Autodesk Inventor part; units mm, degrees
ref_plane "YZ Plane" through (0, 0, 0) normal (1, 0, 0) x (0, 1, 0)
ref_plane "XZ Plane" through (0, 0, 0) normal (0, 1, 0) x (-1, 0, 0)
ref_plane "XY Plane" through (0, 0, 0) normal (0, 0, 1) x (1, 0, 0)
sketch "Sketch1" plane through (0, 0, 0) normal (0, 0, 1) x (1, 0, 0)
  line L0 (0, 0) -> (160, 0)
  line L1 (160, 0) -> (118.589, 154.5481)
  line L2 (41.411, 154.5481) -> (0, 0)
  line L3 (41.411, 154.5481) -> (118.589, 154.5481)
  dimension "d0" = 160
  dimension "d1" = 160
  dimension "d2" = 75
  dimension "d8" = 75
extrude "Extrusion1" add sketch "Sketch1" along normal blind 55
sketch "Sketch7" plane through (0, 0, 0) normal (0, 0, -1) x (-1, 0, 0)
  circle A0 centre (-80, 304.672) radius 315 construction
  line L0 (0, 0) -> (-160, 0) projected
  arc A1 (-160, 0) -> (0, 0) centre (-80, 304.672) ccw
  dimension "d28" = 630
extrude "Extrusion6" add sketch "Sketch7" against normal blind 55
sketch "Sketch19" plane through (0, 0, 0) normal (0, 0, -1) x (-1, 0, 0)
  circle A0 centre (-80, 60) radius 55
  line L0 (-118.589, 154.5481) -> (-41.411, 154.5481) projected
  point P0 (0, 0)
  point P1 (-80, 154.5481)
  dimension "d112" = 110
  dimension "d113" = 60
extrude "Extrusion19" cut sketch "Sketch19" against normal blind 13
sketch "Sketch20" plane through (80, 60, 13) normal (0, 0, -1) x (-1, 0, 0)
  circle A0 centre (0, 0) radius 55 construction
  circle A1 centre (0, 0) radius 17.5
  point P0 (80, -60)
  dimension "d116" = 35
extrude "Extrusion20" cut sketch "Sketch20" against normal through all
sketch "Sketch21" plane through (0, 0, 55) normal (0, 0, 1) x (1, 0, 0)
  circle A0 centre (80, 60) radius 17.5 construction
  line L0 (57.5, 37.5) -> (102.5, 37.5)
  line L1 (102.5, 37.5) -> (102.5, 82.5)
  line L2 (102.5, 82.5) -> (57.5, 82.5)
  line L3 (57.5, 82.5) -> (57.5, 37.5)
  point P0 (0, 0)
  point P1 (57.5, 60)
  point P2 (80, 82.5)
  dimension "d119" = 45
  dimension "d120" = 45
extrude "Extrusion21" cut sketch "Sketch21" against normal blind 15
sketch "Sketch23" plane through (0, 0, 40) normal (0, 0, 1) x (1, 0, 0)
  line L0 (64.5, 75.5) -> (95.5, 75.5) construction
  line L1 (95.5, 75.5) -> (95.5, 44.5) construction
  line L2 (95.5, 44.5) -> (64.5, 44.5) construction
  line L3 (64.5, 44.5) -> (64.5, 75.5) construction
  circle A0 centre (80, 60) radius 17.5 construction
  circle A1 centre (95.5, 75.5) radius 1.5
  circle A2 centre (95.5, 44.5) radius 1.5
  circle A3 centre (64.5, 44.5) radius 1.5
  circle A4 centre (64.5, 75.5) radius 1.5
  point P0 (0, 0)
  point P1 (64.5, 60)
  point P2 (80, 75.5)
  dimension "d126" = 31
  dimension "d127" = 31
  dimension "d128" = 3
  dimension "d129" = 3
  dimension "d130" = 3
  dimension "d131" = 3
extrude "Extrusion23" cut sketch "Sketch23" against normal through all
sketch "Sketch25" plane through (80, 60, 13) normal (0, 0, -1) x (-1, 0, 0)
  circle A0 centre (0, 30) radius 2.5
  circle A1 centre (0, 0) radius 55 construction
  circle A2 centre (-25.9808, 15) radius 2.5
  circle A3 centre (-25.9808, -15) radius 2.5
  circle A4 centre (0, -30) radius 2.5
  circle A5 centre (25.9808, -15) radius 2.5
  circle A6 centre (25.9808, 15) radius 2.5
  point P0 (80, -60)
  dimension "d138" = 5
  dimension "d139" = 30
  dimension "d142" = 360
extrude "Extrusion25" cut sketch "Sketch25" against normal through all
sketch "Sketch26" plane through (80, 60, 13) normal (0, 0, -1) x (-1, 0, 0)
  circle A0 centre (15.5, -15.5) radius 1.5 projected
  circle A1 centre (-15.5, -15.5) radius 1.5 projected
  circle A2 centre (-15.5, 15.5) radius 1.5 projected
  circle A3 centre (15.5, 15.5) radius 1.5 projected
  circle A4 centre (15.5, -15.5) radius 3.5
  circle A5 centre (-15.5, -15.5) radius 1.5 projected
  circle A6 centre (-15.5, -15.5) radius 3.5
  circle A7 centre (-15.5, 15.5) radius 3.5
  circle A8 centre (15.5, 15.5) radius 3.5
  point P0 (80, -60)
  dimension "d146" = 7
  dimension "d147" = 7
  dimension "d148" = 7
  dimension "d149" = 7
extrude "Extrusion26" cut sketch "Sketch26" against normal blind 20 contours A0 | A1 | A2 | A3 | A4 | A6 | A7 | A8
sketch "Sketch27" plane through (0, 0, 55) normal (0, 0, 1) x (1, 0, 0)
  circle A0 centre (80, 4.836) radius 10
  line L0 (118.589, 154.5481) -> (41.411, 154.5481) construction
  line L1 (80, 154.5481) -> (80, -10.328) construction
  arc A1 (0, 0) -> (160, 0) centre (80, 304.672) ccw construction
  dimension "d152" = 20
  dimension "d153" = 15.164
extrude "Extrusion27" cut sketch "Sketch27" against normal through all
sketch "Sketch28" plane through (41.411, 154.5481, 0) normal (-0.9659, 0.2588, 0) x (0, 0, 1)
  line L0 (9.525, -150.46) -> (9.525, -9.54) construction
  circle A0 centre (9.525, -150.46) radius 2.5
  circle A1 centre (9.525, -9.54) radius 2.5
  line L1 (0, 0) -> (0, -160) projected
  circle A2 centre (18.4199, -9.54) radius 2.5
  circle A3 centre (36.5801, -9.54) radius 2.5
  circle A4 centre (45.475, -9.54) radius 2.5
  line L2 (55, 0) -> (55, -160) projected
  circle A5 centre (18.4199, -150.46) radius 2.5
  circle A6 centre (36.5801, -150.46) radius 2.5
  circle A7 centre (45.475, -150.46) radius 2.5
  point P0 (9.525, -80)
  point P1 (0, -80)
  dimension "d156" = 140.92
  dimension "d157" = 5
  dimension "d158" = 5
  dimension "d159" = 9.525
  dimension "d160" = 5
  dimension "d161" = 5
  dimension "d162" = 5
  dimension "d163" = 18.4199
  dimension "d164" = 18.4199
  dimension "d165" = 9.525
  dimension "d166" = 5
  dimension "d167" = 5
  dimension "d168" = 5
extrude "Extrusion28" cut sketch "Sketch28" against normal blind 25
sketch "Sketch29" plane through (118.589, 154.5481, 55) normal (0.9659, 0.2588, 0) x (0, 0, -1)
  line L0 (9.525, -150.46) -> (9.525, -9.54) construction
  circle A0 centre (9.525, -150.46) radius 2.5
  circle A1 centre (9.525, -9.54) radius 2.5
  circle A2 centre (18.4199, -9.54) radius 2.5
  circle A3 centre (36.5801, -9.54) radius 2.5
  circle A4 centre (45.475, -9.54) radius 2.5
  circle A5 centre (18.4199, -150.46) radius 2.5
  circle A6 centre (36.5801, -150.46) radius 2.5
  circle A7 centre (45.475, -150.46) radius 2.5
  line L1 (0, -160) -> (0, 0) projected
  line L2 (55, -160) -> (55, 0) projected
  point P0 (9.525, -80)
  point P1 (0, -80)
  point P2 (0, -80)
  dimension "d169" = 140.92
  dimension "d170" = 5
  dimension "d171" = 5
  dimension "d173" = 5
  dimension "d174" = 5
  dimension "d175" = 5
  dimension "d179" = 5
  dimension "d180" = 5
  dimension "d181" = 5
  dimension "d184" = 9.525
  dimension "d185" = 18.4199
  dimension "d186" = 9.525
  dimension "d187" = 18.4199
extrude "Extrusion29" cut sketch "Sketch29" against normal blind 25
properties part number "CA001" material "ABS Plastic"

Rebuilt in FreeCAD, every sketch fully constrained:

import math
import FreeCAD as App
import Part
import Sketcher

V = App.Vector
Q = App.Units.Quantity


def add_polygon(sketch, points):
    """Adds a closed chain of lines whose ends are joined by coincident constraints."""
    first, n = sketch.GeometryCount, len(points)
    for a, b in zip(points, points[1:] + points[:1]):
        sketch.addGeometry(Part.LineSegment(App.Vector(*a, 0), App.Vector(*b, 0)), False)
    for i in range(n):
        sketch.addConstraint(Sketcher.Constraint("Coincident", first + i, 2, first + (i + 1) % n, 1))

doc = App.newDocument("Part")
body = doc.addObject("PartDesign::Body", "Body")

# Sketch on XY plane
sketch1 = doc.addObject("Sketcher::SketchObject", "Sketch")
body.addObject(sketch1)
sketch1.AttachmentSupport = (doc.XY_Plane, [""])
sketch1.MapMode = "FlatFace"
add_polygon(sketch1, [(41, 155), (0, 0), (160, 0), (119, 155)])  # lines 0-3
sketch1.addConstraint([
    Sketcher.Constraint("Horizontal", 1),
    Sketcher.Constraint("Horizontal", 3),
    Sketcher.Constraint("Coincident", 0, 2, -1, 1),
    Sketcher.Constraint("Equal", 0, 2),
    Sketcher.Constraint("DistanceX", 1, 1, 1, 2, 160.0),
    Sketcher.Constraint("Distance", 0, 160.0),
    Sketcher.Constraint("Angle", 0, Q("-105 deg")),
])
pad1 = doc.addObject("PartDesign::Pad", "Pad")
body.addObject(pad1)
pad1.Profile = sketch1
pad1.Length = 55

# Sketch on XY plane
sketch2 = doc.addObject("Sketcher::SketchObject", "Sketch001")
body.addObject(sketch2)
sketch2.AttachmentSupport = (doc.XY_Plane, [""])
sketch2.MapMode = "FlatFace"
sketch2.addGeometry([
    Part.ArcOfCircle(Part.Circle(V(80, 305, 0), V(0, 0, 1), 315), math.radians(-105), math.radians(-75)),
    Part.LineSegment(V(0, 0, 0), V(160, 0, 0)),
], False)
sketch2.addConstraint([
    Sketcher.Constraint("Coincident", 0, 1, 1, 1),
    Sketcher.Constraint("Coincident", 1, 2, 0, 2),
    Sketcher.Constraint("Horizontal", 1),
    Sketcher.Constraint("Coincident", 0, 1, -1, 1),
    Sketcher.Constraint("Radius", 0, 315.0),
    Sketcher.Constraint("DistanceX", 1, 1, 1, 2, 160.0),
])
pad2 = doc.addObject("PartDesign::Pad", "Pad001")
body.addObject(pad2)
pad2.Profile = sketch2
pad2.Length = 55

# Sketch on XY plane
sketch3 = doc.addObject("Sketcher::SketchObject", "Sketch002")
body.addObject(sketch3)
sketch3.AttachmentSupport = (doc.XY_Plane, [""])
sketch3.MapMode = "FlatFace"
sketch3.addGeometry(Part.Circle(V(80, 60, 0), V(0, 0, 1), 55), False)
sketch3.addConstraint([
    Sketcher.Constraint("Diameter", 0, 110.0),
    Sketcher.Constraint("DistanceY", -1, 1, 0, 3, 60.0),
    Sketcher.Constraint("DistanceX", -1, 1, 0, 3, 80.0),
])
pocket1 = doc.addObject("PartDesign::Pocket", "Pocket")
body.addObject(pocket1)
pocket1.Profile = sketch3
pocket1.Length = 13
pocket1.Reversed = True

# Sketch on XY plane
sketch4 = doc.addObject("Sketcher::SketchObject", "Sketch003")
body.addObject(sketch4)
sketch4.AttachmentSupport = (doc.XY_Plane, [""])
sketch4.MapMode = "FlatFace"
sketch4.AttachmentOffset = App.Placement(V(0, 0, 13), App.Rotation())
sketch4.addGeometry(Part.Circle(V(80, 60, 0), V(0, 0, 1), 18), False)
sketch4.addConstraint([
    Sketcher.Constraint("Diameter", 0, 35.0),
    Sketcher.Constraint("DistanceX", -1, 1, 0, 3, 80.0),
    Sketcher.Constraint("DistanceY", -1, 1, 0, 3, 60.0),
])
pocket2 = doc.addObject("PartDesign::Pocket", "Pocket001")
body.addObject(pocket2)
pocket2.Profile = sketch4
pocket2.Type = "ThroughAll"
pocket2.Reversed = True

# Sketch on XY plane
sketch5 = doc.addObject("Sketcher::SketchObject", "Sketch004")
body.addObject(sketch5)
sketch5.AttachmentSupport = (doc.XY_Plane, [""])
sketch5.MapMode = "FlatFace"
sketch5.AttachmentOffset = App.Placement(V(0, 0, 55), App.Rotation())
add_polygon(sketch5, [(58, 82), (58, 38), (102, 38), (102, 82)])  # lines 0-3
sketch5.addConstraint([
    Sketcher.Constraint("Vertical", 0),
    Sketcher.Constraint("Horizontal", 1),
    Sketcher.Constraint("Vertical", 2),
    Sketcher.Constraint("Horizontal", 3),
    Sketcher.Constraint("Equal", 3, 0),
    Sketcher.Constraint("DistanceX", 1, 1, 1, 2, 45.0),
    Sketcher.Constraint("DistanceX", -1, 1, 0, 2, 57.5),
    Sketcher.Constraint("DistanceY", -1, 1, 0, 2, 37.5),
])
pocket3 = doc.addObject("PartDesign::Pocket", "Pocket002")
body.addObject(pocket3)
pocket3.Profile = sketch5
pocket3.Length = 15

# Sketch on XY plane
sketch6 = doc.addObject("Sketcher::SketchObject", "Sketch005")
body.addObject(sketch6)
sketch6.AttachmentSupport = (doc.XY_Plane, [""])
sketch6.MapMode = "FlatFace"
sketch6.AttachmentOffset = App.Placement(V(0, 0, 40), App.Rotation())
sketch6.addGeometry([
    Part.Circle(V(95.5, 75.5, 0), V(0, 0, 1), 1.5),
    Part.Circle(V(95.5, 44.5, 0), V(0, 0, 1), 1.5),
    Part.Circle(V(64.5, 44.5, 0), V(0, 0, 1), 1.5),
    Part.Circle(V(64.5, 75.5, 0), V(0, 0, 1), 1.5),
], False)
sketch6.addConstraint([
    Sketcher.Constraint("Equal", 0, 1),
    Sketcher.Constraint("Equal", 1, 2),
    Sketcher.Constraint("Equal", 2, 3),
    Sketcher.Constraint("Horizontal", 1, 3, 2, 3),
    Sketcher.Constraint("Horizontal", 0, 3, 3, 3),
    Sketcher.Constraint("Vertical", 0, 3, 1, 3),
    Sketcher.Constraint("Vertical", 2, 3, 3, 3),
    Sketcher.Constraint("Diameter", 0, 3.0),
    Sketcher.Constraint("DistanceY", 1, 3, 0, 3, 31.0),
    Sketcher.Constraint("DistanceX", 2, 3, 1, 3, 31.0),
    Sketcher.Constraint("DistanceX", -1, 1, 0, 3, 95.5),
    Sketcher.Constraint("DistanceY", -1, 1, 0, 3, 75.5),
])
pocket4 = doc.addObject("PartDesign::Pocket", "Pocket003")
body.addObject(pocket4)
pocket4.Profile = sketch6
pocket4.Type = "ThroughAll"

# Sketch on XY plane
sketch7 = doc.addObject("Sketcher::SketchObject", "Sketch006")
body.addObject(sketch7)
sketch7.AttachmentSupport = (doc.XY_Plane, [""])
sketch7.MapMode = "FlatFace"
sketch7.AttachmentOffset = App.Placement(V(0, 0, 13), App.Rotation())
sketch7.addGeometry([
    Part.Circle(V(80, 90, 0), V(0, 0, 1), 2.5),  # 0
    Part.Circle(V(106, 75, 0), V(0, 0, 1), 2.5),  # 1
    Part.Circle(V(106, 45, 0), V(0, 0, 1), 2.5),  # 2
    Part.Circle(V(80, 30, 0), V(0, 0, 1), 2.5),  # 3
    Part.Circle(V(54, 45, 0), V(0, 0, 1), 2.5),  # 4
    Part.Circle(V(54, 75, 0), V(0, 0, 1), 2.5),  # 5
], False)
sketch7.addConstraint([
    Sketcher.Constraint("Equal", 0, 1),
    Sketcher.Constraint("Equal", 1, 2),
    Sketcher.Constraint("Equal", 2, 3),
    Sketcher.Constraint("Equal", 3, 4),
    Sketcher.Constraint("Equal", 4, 5),
    Sketcher.Constraint("Horizontal", 2, 3, 4, 3),
    Sketcher.Constraint("Horizontal", 1, 3, 5, 3),
    Sketcher.Constraint("Vertical", 1, 3, 2, 3),
    Sketcher.Constraint("Vertical", 0, 3, 3, 3),
    Sketcher.Constraint("Vertical", 4, 3, 5, 3),
    Sketcher.Constraint("Diameter", 0, 5.0),
    Sketcher.Constraint("DistanceY", -1, 1, 3, 3, 30.0),
    Sketcher.Constraint("DistanceY", 2, 3, 1, 3, 30.0),
    Sketcher.Constraint("DistanceX", -1, 1, 0, 3, 80.0),
    Sketcher.Constraint("DistanceY", -1, 1, 0, 3, 90.0),
    Sketcher.Constraint("DistanceY", -1, 1, 1, 3, 75.0),
    Sketcher.Constraint("DistanceX", -1, 1, 1, 3, 105.9808),
    Sketcher.Constraint("DistanceX", -1, 1, 4, 3, 54.0192),
])
pocket5 = doc.addObject("PartDesign::Pocket", "Pocket004")
body.addObject(pocket5)
pocket5.Profile = sketch7
pocket5.Type = "ThroughAll"
pocket5.Reversed = True

# Sketch on XY plane
sketch8 = doc.addObject("Sketcher::SketchObject", "Sketch007")
body.addObject(sketch8)
sketch8.AttachmentSupport = (doc.XY_Plane, [""])
sketch8.MapMode = "FlatFace"
sketch8.AttachmentOffset = App.Placement(V(0, 0, 13), App.Rotation())
sketch8.addGeometry([
    Part.Circle(V(64.5, 44.5, 0), V(0, 0, 1), 3.5),
    Part.Circle(V(95.5, 44.5, 0), V(0, 0, 1), 3.5),
    Part.Circle(V(95.5, 75.5, 0), V(0, 0, 1), 3.5),
    Part.Circle(V(64.5, 75.5, 0), V(0, 0, 1), 3.5),
], False)
sketch8.addConstraint([
    Sketcher.Constraint("Equal", 0, 1),
    Sketcher.Constraint("Equal", 1, 2),
    Sketcher.Constraint("Equal", 2, 3),
    Sketcher.Constraint("Horizontal", 0, 3, 1, 3),
    Sketcher.Constraint("Horizontal", 2, 3, 3, 3),
    Sketcher.Constraint("Vertical", 1, 3, 2, 3),
    Sketcher.Constraint("Vertical", 0, 3, 3, 3),
    Sketcher.Constraint("Diameter", 0, 7.0),
    Sketcher.Constraint("DistanceX", 0, 3, 1, 3, 31.0),
    Sketcher.Constraint("DistanceY", 1, 3, 2, 3, 31.0),
    Sketcher.Constraint("DistanceX", -1, 1, 0, 3, 64.5),
    Sketcher.Constraint("DistanceY", -1, 1, 0, 3, 44.5),
])
pocket6 = doc.addObject("PartDesign::Pocket", "Pocket005")
body.addObject(pocket6)
pocket6.Profile = sketch8
pocket6.Length = 20
pocket6.Reversed = True

# Sketch on XY plane
sketch9 = doc.addObject("Sketcher::SketchObject", "Sketch008")
body.addObject(sketch9)
sketch9.AttachmentSupport = (doc.XY_Plane, [""])
sketch9.MapMode = "FlatFace"
sketch9.AttachmentOffset = App.Placement(V(0, 0, 55), App.Rotation())
sketch9.addGeometry(Part.Circle(V(80, 5, 0), V(0, 0, 1), 10), False)
sketch9.addConstraint([
    Sketcher.Constraint("Diameter", 0, 20.0),
    Sketcher.Constraint("DistanceX", -1, 1, 0, 3, 80.0),
    Sketcher.Constraint("DistanceY", -1, 1, 0, 3, 4.836),
])
pocket7 = doc.addObject("PartDesign::Pocket", "Pocket006")
body.addObject(pocket7)
pocket7.Profile = sketch9
pocket7.Type = "ThroughAll"

# Sketch on an angled plane
sketch10 = doc.addObject("Sketcher::SketchObject", "Sketch009")
body.addObject(sketch10)
sketch10.Placement = App.Placement(V(41.411, 154.5481, 0), App.Rotation(V(0, 0, 1), V(0.258819045, 0.965925826, 0), V(-0.965925826, 0.258819045, 0), "ZXY"))
sketch10.addGeometry([
    Part.Circle(V(9.5, -150.5, 0), V(0, 0, 1), 2.5),  # 0
    Part.Circle(V(9.5, -9.5, 0), V(0, 0, 1), 2.5),  # 1
    Part.Circle(V(18.4, -9.5, 0), V(0, 0, 1), 2.5),  # 2
    Part.Circle(V(36.6, -9.5, 0), V(0, 0, 1), 2.5),  # 3
    Part.Circle(V(45.5, -9.5, 0), V(0, 0, 1), 2.5),  # 4
    Part.Circle(V(18.4, -150.5, 0), V(0, 0, 1), 2.5),  # 5
    Part.Circle(V(36.6, -150.5, 0), V(0, 0, 1), 2.5),  # 6
    Part.Circle(V(45.5, -150.5, 0), V(0, 0, 1), 2.5),  # 7
], False)
sketch10.addConstraint([
    Sketcher.Constraint("Equal", 0, 1),
    Sketcher.Constraint("Equal", 1, 2),
    Sketcher.Constraint("Equal", 2, 3),
    Sketcher.Constraint("Equal", 3, 4),
    Sketcher.Constraint("Equal", 4, 5),
    Sketcher.Constraint("Equal", 5, 6),
    Sketcher.Constraint("Equal", 6, 7),
    Sketcher.Constraint("Horizontal", 1, 3, 2, 3),
    Sketcher.Constraint("Horizontal", 2, 3, 3, 3),
    Sketcher.Constraint("Horizontal", 3, 3, 4, 3),
    Sketcher.Constraint("Horizontal", 0, 3, 5, 3),
    Sketcher.Constraint("Horizontal", 5, 3, 6, 3),
    Sketcher.Constraint("Horizontal", 6, 3, 7, 3),
    Sketcher.Constraint("Vertical", 0, 3, 1, 3),
    Sketcher.Constraint("Vertical", 2, 3, 5, 3),
    Sketcher.Constraint("Vertical", 3, 3, 6, 3),
    Sketcher.Constraint("Vertical", 4, 3, 7, 3),
    Sketcher.Constraint("Diameter", 0, 5.0),
    Sketcher.Constraint("DistanceX", -1, 1, 2, 3, 18.42),
    Sketcher.Constraint("DistanceY", 0, 3, 1, 3, 140.92),
    Sketcher.Constraint("DistanceX", -1, 1, 0, 3, 9.525),
    Sketcher.Constraint("DistanceY", 0, 3, -1, 1, 150.46),
    Sketcher.Constraint("DistanceX", -1, 1, 3, 3, 36.58),
    Sketcher.Constraint("DistanceX", 1, 3, 4, 3, 35.95),
])
pocket8 = doc.addObject("PartDesign::Pocket", "Pocket007")
body.addObject(pocket8)
pocket8.Profile = sketch10
pocket8.Length = 25

# Sketch on an angled plane
sketch11 = doc.addObject("Sketcher::SketchObject", "Sketch010")
body.addObject(sketch11)
sketch11.Placement = App.Placement(V(118.589, 154.5481, 55), App.Rotation(V(0, 0, -1), V(-0.258819045, 0.965925826, 0), V(0.965925826, 0.258819045, 0), "ZXY"))
sketch11.addGeometry([
    Part.Circle(V(9.5, -150.5, 0), V(0, 0, 1), 2.5),  # 0
    Part.Circle(V(9.5, -9.5, 0), V(0, 0, 1), 2.5),  # 1
    Part.Circle(V(18.4, -9.5, 0), V(0, 0, 1), 2.5),  # 2
    Part.Circle(V(36.6, -9.5, 0), V(0, 0, 1), 2.5),  # 3
    Part.Circle(V(45.5, -9.5, 0), V(0, 0, 1), 2.5),  # 4
    Part.Circle(V(18.4, -150.5, 0), V(0, 0, 1), 2.5),  # 5
    Part.Circle(V(36.6, -150.5, 0), V(0, 0, 1), 2.5),  # 6
    Part.Circle(V(45.5, -150.5, 0), V(0, 0, 1), 2.5),  # 7
], False)
sketch11.addConstraint([
    Sketcher.Constraint("Equal", 0, 1),
    Sketcher.Constraint("Equal", 1, 2),
    Sketcher.Constraint("Equal", 2, 3),
    Sketcher.Constraint("Equal", 3, 4),
    Sketcher.Constraint("Equal", 4, 5),
    Sketcher.Constraint("Equal", 5, 6),
    Sketcher.Constraint("Equal", 6, 7),
    Sketcher.Constraint("Horizontal", 1, 3, 2, 3),
    Sketcher.Constraint("Horizontal", 2, 3, 3, 3),
    Sketcher.Constraint("Horizontal", 3, 3, 4, 3),
    Sketcher.Constraint("Horizontal", 0, 3, 5, 3),
    Sketcher.Constraint("Horizontal", 5, 3, 6, 3),
    Sketcher.Constraint("Horizontal", 6, 3, 7, 3),
    Sketcher.Constraint("Vertical", 0, 3, 1, 3),
    Sketcher.Constraint("Vertical", 2, 3, 5, 3),
    Sketcher.Constraint("Vertical", 3, 3, 6, 3),
    Sketcher.Constraint("Vertical", 4, 3, 7, 3),
    Sketcher.Constraint("Diameter", 0, 5.0),
    Sketcher.Constraint("DistanceX", -1, 1, 2, 3, 18.42),
    Sketcher.Constraint("DistanceY", 0, 3, 1, 3, 140.92),
    Sketcher.Constraint("DistanceX", -1, 1, 0, 3, 9.525),
    Sketcher.Constraint("DistanceY", 0, 3, -1, 1, 150.46),
    Sketcher.Constraint("DistanceX", -1, 1, 3, 3, 36.58),
    Sketcher.Constraint("DistanceX", 1, 3, 4, 3, 35.95),
])
pocket9 = doc.addObject("PartDesign::Pocket", "Pocket008")
body.addObject(pocket9)
pocket9.Profile = sketch11
pocket9.Length = 25

doc.recompute()
